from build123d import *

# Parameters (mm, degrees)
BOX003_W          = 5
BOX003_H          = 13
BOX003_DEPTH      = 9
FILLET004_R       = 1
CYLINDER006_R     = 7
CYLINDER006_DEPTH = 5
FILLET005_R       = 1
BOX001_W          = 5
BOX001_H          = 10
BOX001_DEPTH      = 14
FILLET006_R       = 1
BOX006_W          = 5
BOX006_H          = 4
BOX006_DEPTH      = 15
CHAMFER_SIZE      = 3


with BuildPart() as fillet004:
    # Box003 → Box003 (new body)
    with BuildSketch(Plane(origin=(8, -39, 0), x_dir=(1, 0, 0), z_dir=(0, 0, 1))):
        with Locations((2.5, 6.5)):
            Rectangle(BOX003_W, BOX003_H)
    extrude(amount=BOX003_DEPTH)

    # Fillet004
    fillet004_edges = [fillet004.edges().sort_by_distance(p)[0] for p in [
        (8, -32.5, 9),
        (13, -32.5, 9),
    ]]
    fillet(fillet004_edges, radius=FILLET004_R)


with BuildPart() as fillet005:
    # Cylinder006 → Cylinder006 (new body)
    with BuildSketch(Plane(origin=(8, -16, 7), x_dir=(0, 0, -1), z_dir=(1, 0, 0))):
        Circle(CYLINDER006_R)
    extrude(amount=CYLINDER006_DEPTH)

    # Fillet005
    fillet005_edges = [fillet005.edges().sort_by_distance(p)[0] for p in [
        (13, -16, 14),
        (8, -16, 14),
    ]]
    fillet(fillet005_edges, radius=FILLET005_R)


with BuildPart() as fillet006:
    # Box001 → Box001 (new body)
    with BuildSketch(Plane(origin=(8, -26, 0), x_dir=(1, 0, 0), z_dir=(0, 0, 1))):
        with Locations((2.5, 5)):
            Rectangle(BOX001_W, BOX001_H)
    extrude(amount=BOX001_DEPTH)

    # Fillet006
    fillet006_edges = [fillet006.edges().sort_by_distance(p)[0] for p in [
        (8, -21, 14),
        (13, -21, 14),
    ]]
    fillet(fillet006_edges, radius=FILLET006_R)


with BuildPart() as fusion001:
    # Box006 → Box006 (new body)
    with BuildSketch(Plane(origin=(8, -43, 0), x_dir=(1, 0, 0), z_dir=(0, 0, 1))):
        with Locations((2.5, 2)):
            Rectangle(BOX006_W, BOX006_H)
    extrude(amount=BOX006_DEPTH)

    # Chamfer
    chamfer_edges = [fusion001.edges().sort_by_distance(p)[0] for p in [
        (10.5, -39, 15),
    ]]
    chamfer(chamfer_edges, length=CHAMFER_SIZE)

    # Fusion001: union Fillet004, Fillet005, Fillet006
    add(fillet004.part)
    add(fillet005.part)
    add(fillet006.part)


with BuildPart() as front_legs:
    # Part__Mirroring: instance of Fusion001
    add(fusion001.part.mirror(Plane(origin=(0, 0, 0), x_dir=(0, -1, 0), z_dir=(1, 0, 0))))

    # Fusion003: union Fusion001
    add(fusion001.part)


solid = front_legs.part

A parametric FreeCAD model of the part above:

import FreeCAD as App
import Part
import Sketcher


def edges_at(feature, points):
    """Names of the edges that pass closest to the given points."""
    edges = feature.Shape.Edges
    near = lambda p: min(range(len(edges)), key=lambda i: edges[i].distToShape(Part.Vertex(*p))[0])
    return sorted({f"Edge{near(p) + 1}" for p in points})

doc = App.newDocument("Part")
params = doc.addObject("Spreadsheet::Sheet", "Params")
for row, (alias, value) in enumerate([
    ("sketch1_width", "5 mm"),
    ("sketch1_height", "13 mm"),
    ("pad1_length", "9 mm"),
    ("fillet_radius", "1 mm"),
    ("sketch2_diameter", "14 mm"),
    ("pad2_length", "5 mm"),
    ("fillet2_radius", "1 mm"),
    ("sketch3_width", "5 mm"),
    ("sketch3_height", "10 mm"),
    ("pad3_length", "14 mm"),
    ("fillet3_radius", "1 mm"),
    ("sketch4_width", "5 mm"),
    ("sketch4_height", "4 mm"),
    ("pad4_length", "15 mm"),
    ("chamfer_size", "3 mm"),
], start=1):
    params.set(f"A{row}", alias)
    params.set(f"B{row}", "=" + value)
    params.setAlias(f"B{row}", alias)

body = doc.addObject("PartDesign::Body", "Body")

# Sketch on XY plane
sketch1 = body.newObject("Sketcher::SketchObject", "Sketch")
sketch1.AttachmentSupport = (doc.getObject("XY_Plane"), [""])
sketch1.MapMode = "FlatFace"
sketch1.addGeometry([
    Part.LineSegment(App.Vector(8, -26, 0), App.Vector(8, -39, 0)),
    Part.LineSegment(App.Vector(8, -39, 0), App.Vector(13, -39, 0)),
    Part.LineSegment(App.Vector(13, -39, 0), App.Vector(13, -26, 0)),
    Part.LineSegment(App.Vector(13, -26, 0), App.Vector(8, -26, 0)),
], False)
sketch1.addConstraint([
    Sketcher.Constraint("Coincident", 0, 2, 1, 1),
    Sketcher.Constraint("Coincident", 1, 2, 2, 1),
    Sketcher.Constraint("Coincident", 2, 2, 3, 1),
    Sketcher.Constraint("Coincident", 3, 2, 0, 1),
    Sketcher.Constraint("Vertical", 0),
    Sketcher.Constraint("Horizontal", 1),
    Sketcher.Constraint("Vertical", 2),
    Sketcher.Constraint("Horizontal", 3),
    Sketcher.Constraint("DistanceX", 1, 1, 1, 2, 5.0),
    Sketcher.Constraint("DistanceY", 0, 2, 0, 1, 13.0),
    Sketcher.Constraint("DistanceX", -1, 1, 0, 2, 8.0),
    Sketcher.Constraint("DistanceY", 0, 2, -1, 1, 39.0),
])
sketch1.setExpression("Constraints[8]", "Params.sketch1_width")
sketch1.setExpression("Constraints[9]", "Params.sketch1_height")
pad1 = body.newObject("PartDesign::Pad", "Pad")
pad1.Profile = sketch1
pad1.setExpression("Length", "Params.pad1_length")
doc.recompute()

fillet = body.newObject("PartDesign::Fillet", "Fillet")
fillet.Base = (pad1, edges_at(pad1, [(8, -32.5, 9), (13, -32.5, 9)]))
fillet.setExpression("Radius", "Params.fillet_radius")
body2 = doc.addObject("PartDesign::Body", "Body001")

# Sketch on YZ plane
sketch2 = body2.newObject("Sketcher::SketchObject", "Sketch001")
sketch2.AttachmentSupport = (doc.getObject("YZ_Plane001"), [""])
sketch2.MapMode = "FlatFace"
sketch2.AttachmentOffset = App.Placement(App.Vector(0, 0, 8), App.Rotation())
sketch2.addGeometry(Part.Circle(App.Vector(-16, 7, 0), App.Vector(0, 0, 1), 7), False)
sketch2.addConstraint([
    Sketcher.Constraint("Diameter", 0, 14.0),
    Sketcher.Constraint("DistanceX", 0, 3, -1, 1, 16.0),
    Sketcher.Constraint("DistanceY", -1, 1, 0, 3, 7.0),
])
sketch2.setExpression("Constraints[0]", "Params.sketch2_diameter")
pad2 = body2.newObject("PartDesign::Pad", "Pad001")
pad2.Profile = sketch2
pad2.setExpression("Length", "Params.pad2_length")
doc.recompute()

fillet2 = body2.newObject("PartDesign::Fillet", "Fillet001")
fillet2.Base = (pad2, edges_at(pad2, [(13, -16, 14), (8, -16, 14)]))
fillet2.setExpression("Radius", "Params.fillet2_radius")
body3 = doc.addObject("PartDesign::Body", "Body002")

# Sketch on XY plane
sketch3 = body3.newObject("Sketcher::SketchObject", "Sketch002")
sketch3.AttachmentSupport = (doc.getObject("XY_Plane002"), [""])
sketch3.MapMode = "FlatFace"
sketch3.addGeometry([
    Part.LineSegment(App.Vector(8, -16, 0), App.Vector(8, -26, 0)),
    Part.LineSegment(App.Vector(8, -26, 0), App.Vector(13, -26, 0)),
    Part.LineSegment(App.Vector(13, -26, 0), App.Vector(13, -16, 0)),
    Part.LineSegment(App.Vector(13, -16, 0), App.Vector(8, -16, 0)),
], False)
sketch3.addConstraint([
    Sketcher.Constraint("Coincident", 0, 2, 1, 1),
    Sketcher.Constraint("Coincident", 1, 2, 2, 1),
    Sketcher.Constraint("Coincident", 2, 2, 3, 1),
    Sketcher.Constraint("Coincident", 3, 2, 0, 1),
    Sketcher.Constraint("Vertical", 0),
    Sketcher.Constraint("Horizontal", 1),
    Sketcher.Constraint("Vertical", 2),
    Sketcher.Constraint("Horizontal", 3),
    Sketcher.Constraint("DistanceX", 1, 1, 1, 2, 5.0),
    Sketcher.Constraint("DistanceY", 0, 2, 0, 1, 10.0),
    Sketcher.Constraint("DistanceX", -1, 1, 0, 2, 8.0),
    Sketcher.Constraint("DistanceY", 0, 2, -1, 1, 26.0),
])
sketch3.setExpression("Constraints[8]", "Params.sketch3_width")
sketch3.setExpression("Constraints[9]", "Params.sketch3_height")
pad3 = body3.newObject("PartDesign::Pad", "Pad002")
pad3.Profile = sketch3
pad3.setExpression("Length", "Params.pad3_length")
doc.recompute()

fillet3 = body3.newObject("PartDesign::Fillet", "Fillet002")
fillet3.Base = (pad3, edges_at(pad3, [(8, -21, 14), (13, -21, 14)]))
fillet3.setExpression("Radius", "Params.fillet3_radius")
body4 = doc.addObject("PartDesign::Body", "Body003")
body4.AllowCompound = True

# Sketch on XY plane
sketch4 = body4.newObject("Sketcher::SketchObject", "Sketch003")
sketch4.AttachmentSupport = (doc.getObject("XY_Plane003"), [""])
sketch4.MapMode = "FlatFace"
sketch4.addGeometry([
    Part.LineSegment(App.Vector(8, -39, 0), App.Vector(8, -43, 0)),
    Part.LineSegment(App.Vector(8, -43, 0), App.Vector(13, -43, 0)),
    Part.LineSegment(App.Vector(13, -43, 0), App.Vector(13, -39, 0)),
    Part.LineSegment(App.Vector(13, -39, 0), App.Vector(8, -39, 0)),
], False)
sketch4.addConstraint([
    Sketcher.Constraint("Coincident", 0, 2, 1, 1),
    Sketcher.Constraint("Coincident", 1, 2, 2, 1),
    Sketcher.Constraint("Coincident", 2, 2, 3, 1),
    Sketcher.Constraint("Coincident", 3, 2, 0, 1),
    Sketcher.Constraint("Vertical", 0),
    Sketcher.Constraint("Horizontal", 1),
    Sketcher.Constraint("Vertical", 2),
    Sketcher.Constraint("Horizontal", 3),
    Sketcher.Constraint("DistanceX", 1, 1, 1, 2, 5.0),
    Sketcher.Constraint("DistanceY", 0, 2, 0, 1, 4.0),
    Sketcher.Constraint("DistanceX", -1, 1, 0, 2, 8.0),
    Sketcher.Constraint("DistanceY", 0, 2, -1, 1, 43.0),
])
sketch4.setExpression("Constraints[8]", "Params.sketch4_width")
sketch4.setExpression("Constraints[9]", "Params.sketch4_height")
pad4 = body4.newObject("PartDesign::Pad", "Pad003")
pad4.Profile = sketch4
pad4.setExpression("Length", "Params.pad4_length")
doc.recompute()

chamfer = body4.newObject("PartDesign::Chamfer", "Chamfer")
chamfer.Base = (pad4, edges_at(pad4, [(10.5, -39, 15)]))
chamfer.setExpression("Size", "Params.chamfer_size")
doc.recompute()

boolean = body4.newObject("PartDesign::Boolean", "Boolean")
boolean.Type = "Fuse"
boolean.addObjects([body])
doc.recompute()

boolean2 = body4.newObject("PartDesign::Boolean", "Boolean001")
boolean2.Type = "Fuse"
boolean2.addObjects([body2])
doc.recompute()

boolean3 = body4.newObject("PartDesign::Boolean", "Boolean002")
boolean3.Type = "Fuse"
boolean3.addObjects([body3])
body5 = doc.addObject("PartDesign::Body", "Body004")
body5.AllowCompound = True
doc.recompute()

mirroring = doc.addObject("Part::Mirroring", "Mirroring")
mirroring.Source = body4
mirroring.Base = App.Vector(0, 0, 0)
mirroring.Normal = App.Vector(1, 0, 0)
body5.BaseFeature = mirroring
doc.recompute()

boolean4 = body5.newObject("PartDesign::Boolean", "Boolean003")
boolean4.Type = "Fuse"
boolean4.addObjects([body4])
mirroring.Visibility = False

doc.recompute()
